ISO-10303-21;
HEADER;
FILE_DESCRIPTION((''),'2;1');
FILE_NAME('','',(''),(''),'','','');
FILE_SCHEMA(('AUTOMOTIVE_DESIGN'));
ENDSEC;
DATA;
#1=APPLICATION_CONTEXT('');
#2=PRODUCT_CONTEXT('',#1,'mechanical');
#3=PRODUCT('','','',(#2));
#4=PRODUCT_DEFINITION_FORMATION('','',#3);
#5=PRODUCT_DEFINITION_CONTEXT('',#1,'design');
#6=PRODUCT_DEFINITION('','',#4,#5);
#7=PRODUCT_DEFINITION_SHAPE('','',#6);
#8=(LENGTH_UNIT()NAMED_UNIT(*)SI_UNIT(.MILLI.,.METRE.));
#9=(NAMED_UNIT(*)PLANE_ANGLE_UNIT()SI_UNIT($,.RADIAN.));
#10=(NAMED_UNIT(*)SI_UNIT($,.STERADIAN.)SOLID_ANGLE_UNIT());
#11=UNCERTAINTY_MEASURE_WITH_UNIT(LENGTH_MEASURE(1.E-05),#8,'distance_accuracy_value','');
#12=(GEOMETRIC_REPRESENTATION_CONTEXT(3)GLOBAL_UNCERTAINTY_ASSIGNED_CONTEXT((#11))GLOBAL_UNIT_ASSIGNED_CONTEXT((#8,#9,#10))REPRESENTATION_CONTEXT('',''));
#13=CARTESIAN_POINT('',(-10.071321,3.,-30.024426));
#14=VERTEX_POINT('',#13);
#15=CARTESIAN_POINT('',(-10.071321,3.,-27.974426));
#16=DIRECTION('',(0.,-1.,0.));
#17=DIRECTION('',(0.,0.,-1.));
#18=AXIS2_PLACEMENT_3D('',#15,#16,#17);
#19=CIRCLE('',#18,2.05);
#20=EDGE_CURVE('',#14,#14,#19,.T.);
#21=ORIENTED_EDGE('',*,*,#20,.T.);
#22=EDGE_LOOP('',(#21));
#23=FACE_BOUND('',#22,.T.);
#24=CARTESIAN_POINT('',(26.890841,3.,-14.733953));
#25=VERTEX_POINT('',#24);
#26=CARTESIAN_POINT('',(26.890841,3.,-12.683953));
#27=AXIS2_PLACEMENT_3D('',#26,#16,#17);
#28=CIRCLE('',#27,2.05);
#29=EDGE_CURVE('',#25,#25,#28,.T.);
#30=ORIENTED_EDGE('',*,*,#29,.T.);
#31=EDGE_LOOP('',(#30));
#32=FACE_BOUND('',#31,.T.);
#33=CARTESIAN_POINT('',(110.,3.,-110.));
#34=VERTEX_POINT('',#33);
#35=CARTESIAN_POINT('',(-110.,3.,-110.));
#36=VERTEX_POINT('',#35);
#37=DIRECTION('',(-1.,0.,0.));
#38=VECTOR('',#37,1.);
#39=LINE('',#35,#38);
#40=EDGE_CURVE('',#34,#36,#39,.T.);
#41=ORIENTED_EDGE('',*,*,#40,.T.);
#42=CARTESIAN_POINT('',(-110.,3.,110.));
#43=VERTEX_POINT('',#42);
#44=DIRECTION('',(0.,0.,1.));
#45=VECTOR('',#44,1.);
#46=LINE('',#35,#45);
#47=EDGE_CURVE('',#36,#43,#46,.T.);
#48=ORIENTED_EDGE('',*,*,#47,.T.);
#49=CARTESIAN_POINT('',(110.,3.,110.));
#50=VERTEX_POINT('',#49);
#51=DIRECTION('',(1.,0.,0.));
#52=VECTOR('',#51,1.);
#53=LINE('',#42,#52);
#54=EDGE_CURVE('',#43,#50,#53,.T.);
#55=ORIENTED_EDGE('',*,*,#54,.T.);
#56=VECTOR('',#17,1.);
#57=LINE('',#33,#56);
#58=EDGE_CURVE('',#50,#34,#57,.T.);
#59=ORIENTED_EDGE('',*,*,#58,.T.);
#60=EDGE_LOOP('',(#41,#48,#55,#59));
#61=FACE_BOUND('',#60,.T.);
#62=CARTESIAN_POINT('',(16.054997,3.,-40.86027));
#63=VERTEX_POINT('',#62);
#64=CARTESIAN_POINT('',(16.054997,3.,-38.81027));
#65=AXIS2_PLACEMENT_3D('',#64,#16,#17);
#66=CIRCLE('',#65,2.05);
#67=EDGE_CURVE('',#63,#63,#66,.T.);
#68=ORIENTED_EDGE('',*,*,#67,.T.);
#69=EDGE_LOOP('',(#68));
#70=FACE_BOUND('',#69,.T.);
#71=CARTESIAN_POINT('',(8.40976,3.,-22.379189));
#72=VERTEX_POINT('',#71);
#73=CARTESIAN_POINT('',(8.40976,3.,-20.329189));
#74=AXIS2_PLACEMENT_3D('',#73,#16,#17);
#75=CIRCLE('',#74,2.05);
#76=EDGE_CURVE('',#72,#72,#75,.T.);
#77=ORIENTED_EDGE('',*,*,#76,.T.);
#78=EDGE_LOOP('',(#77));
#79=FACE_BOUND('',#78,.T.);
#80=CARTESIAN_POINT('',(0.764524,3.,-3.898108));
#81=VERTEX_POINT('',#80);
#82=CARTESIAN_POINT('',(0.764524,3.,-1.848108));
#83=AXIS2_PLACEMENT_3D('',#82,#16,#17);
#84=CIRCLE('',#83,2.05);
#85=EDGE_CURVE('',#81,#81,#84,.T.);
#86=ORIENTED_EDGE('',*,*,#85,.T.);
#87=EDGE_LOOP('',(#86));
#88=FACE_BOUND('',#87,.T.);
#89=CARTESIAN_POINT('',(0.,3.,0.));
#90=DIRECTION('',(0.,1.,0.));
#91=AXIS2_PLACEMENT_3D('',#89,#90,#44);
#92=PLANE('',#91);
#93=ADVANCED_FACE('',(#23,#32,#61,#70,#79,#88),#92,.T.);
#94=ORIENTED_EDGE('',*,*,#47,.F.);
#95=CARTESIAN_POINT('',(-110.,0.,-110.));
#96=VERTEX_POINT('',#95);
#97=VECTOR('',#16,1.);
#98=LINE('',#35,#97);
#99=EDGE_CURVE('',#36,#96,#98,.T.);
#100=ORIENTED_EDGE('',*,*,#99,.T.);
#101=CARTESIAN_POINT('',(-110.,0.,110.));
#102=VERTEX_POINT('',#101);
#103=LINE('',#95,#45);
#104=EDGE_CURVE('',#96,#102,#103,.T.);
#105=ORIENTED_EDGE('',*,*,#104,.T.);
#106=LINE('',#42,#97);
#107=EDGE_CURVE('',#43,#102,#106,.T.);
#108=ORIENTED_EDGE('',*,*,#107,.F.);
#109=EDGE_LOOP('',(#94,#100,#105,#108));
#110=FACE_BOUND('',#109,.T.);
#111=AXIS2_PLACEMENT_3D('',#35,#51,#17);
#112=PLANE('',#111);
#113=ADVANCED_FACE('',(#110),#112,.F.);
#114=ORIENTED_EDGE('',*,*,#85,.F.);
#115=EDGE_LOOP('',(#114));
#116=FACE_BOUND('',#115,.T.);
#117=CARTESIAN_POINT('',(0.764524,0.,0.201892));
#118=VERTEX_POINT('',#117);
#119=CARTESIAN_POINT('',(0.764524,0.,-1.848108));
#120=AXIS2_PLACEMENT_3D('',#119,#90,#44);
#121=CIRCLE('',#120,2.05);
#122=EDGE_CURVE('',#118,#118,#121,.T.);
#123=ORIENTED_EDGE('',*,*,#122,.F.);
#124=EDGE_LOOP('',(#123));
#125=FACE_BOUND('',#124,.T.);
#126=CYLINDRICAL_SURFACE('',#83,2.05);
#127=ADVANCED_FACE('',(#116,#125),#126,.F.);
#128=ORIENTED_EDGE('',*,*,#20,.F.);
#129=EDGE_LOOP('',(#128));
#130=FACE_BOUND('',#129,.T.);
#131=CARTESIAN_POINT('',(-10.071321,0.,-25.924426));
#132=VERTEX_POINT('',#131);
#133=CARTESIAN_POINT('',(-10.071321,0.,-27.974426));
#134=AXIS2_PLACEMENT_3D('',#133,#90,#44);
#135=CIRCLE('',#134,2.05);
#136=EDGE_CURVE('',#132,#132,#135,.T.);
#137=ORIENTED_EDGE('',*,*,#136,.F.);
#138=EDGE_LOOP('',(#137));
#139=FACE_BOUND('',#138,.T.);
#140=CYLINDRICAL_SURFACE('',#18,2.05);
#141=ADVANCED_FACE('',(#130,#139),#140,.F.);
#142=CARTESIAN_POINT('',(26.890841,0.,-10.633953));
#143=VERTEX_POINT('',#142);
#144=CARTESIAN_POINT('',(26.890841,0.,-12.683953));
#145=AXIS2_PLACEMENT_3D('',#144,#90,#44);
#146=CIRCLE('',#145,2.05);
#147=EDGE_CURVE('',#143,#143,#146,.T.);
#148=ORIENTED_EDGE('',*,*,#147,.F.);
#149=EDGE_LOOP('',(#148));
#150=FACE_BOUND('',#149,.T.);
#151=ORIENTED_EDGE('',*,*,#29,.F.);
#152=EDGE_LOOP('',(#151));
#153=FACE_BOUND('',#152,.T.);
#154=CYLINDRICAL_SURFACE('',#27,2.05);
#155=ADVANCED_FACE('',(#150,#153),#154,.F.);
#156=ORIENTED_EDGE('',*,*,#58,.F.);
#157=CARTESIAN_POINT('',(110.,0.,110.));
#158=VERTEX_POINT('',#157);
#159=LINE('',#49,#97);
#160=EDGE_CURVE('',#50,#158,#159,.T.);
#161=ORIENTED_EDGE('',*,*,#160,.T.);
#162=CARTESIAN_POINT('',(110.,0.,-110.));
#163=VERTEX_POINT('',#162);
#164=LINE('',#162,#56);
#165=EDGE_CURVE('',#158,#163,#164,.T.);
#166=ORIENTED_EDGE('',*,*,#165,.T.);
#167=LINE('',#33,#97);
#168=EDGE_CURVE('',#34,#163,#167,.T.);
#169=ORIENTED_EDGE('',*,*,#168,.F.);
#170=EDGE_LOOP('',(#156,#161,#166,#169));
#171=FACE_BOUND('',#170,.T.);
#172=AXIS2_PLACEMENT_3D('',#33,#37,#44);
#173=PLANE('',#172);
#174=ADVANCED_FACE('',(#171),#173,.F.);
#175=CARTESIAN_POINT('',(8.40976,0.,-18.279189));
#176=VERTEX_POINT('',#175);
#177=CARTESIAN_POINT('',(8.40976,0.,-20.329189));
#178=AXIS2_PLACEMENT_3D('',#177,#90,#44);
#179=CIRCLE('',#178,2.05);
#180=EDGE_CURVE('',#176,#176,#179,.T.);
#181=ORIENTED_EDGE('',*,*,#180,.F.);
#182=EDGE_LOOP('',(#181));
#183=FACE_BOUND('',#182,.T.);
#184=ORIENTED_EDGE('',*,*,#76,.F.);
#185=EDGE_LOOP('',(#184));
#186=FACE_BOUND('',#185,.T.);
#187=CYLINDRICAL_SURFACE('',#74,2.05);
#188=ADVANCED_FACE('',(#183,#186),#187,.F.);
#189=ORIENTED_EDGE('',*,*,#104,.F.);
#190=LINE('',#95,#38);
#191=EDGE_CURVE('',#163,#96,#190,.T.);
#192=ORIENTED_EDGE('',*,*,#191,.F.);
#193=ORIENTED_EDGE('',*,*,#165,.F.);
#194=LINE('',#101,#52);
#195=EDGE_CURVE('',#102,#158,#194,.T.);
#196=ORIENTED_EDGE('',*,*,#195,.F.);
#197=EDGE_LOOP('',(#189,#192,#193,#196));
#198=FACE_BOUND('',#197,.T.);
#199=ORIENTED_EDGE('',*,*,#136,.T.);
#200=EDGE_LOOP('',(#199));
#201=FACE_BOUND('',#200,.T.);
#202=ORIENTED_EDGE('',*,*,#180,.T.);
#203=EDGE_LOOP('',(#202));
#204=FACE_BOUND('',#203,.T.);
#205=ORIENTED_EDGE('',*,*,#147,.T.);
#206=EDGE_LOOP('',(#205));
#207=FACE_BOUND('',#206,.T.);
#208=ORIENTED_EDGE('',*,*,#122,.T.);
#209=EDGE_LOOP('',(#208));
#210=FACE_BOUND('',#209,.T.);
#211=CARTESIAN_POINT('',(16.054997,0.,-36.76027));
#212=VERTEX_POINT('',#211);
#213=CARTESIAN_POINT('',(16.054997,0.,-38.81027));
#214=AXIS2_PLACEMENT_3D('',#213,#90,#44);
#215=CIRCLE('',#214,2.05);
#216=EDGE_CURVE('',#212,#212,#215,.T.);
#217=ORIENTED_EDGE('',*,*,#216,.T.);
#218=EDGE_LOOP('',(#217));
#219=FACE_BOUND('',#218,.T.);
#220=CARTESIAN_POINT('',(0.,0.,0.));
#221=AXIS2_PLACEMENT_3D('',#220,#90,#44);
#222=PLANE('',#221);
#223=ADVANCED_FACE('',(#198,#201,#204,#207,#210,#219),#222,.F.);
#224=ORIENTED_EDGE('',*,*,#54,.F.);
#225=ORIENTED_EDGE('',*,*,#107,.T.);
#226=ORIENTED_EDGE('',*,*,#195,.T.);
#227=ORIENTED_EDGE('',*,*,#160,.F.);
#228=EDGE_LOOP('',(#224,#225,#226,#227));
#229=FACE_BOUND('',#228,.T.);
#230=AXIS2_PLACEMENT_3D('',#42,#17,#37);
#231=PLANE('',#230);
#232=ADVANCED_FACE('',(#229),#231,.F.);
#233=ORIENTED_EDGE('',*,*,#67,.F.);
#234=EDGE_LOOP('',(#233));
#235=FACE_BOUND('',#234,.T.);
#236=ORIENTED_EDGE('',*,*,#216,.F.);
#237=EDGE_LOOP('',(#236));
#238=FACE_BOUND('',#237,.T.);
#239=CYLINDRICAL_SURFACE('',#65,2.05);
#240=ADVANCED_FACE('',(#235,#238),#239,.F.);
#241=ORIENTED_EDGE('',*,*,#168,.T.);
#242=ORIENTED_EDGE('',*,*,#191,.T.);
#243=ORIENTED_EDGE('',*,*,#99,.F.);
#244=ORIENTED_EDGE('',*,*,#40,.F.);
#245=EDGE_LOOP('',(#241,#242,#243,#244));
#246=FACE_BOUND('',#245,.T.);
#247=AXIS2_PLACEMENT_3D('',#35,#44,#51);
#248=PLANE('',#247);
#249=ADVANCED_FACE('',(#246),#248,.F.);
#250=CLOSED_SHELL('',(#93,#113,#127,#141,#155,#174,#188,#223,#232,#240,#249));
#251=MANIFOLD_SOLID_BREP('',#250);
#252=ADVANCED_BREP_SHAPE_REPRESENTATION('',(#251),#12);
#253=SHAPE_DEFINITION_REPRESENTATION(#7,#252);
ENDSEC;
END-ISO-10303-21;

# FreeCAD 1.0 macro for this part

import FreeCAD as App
import Part
import Sketcher
Q = App.Units.Quantity

doc = App.newDocument("Part")
body = doc.addObject("PartDesign::Body", "Body")

# Sketch on XZ plane
sketch1 = body.newObject("Sketcher::SketchObject", "Sketch")
sketch1.AttachmentSupport = (doc.getObject("XZ_Plane"), [""])
sketch1.MapMode = "FlatFace"
sketch1.addGeometry([
    Part.LineSegment(App.Vector(-110, -110, 0), App.Vector(-110, 110, 0)),
    Part.LineSegment(App.Vector(-110, 110, 0), App.Vector(110, 110, 0)),
    Part.LineSegment(App.Vector(110, 110, 0), App.Vector(110, -110, 0)),
    Part.LineSegment(App.Vector(110, -110, 0), App.Vector(-110, -110, 0)),
], False)
sketch1.addConstraint([
    Sketcher.Constraint("Coincident", 0, 2, 1, 1),
    Sketcher.Constraint("Coincident", 1, 2, 2, 1),
    Sketcher.Constraint("Coincident", 2, 2, 3, 1),
    Sketcher.Constraint("Coincident", 3, 2, 0, 1),
    Sketcher.Constraint("Vertical", 0),
    Sketcher.Constraint("Horizontal", 1),
    Sketcher.Constraint("Vertical", 2),
    Sketcher.Constraint("Horizontal", 3),
    Sketcher.Constraint("Symmetric", 0, 2, 2, 2, -1, 1),
    Sketcher.Constraint("Equal", 3, 0),
    Sketcher.Constraint("DistanceX", 1, 1, 1, 2, Q("220 mm")),
])
pad1 = body.newObject("PartDesign::Pad", "Pad")
pad1.Profile = sketch1
pad1.Length = 3
pad1.Reversed = True

# Sketch on XZ plane
sketch2 = body.newObject("Sketcher::SketchObject", "Sketch001")
sketch2.AttachmentSupport = (doc.getObject("XZ_Plane"), [""])
sketch2.MapMode = "FlatFace"
sketch2.addGeometry([
    Part.Circle(App.Vector(16.1, -38.8, 0), App.Vector(0, 0, 1), 2),  # 0
    Part.Circle(App.Vector(8.4, -20.3, 0), App.Vector(0, 0, 1), 2),  # 1
    Part.Circle(App.Vector(26.9, -12.7, 0), App.Vector(0, 0, 1), 2),  # 2
    Part.Circle(App.Vector(0.8, -1.8, 0), App.Vector(0, 0, 1), 2),  # 3
    Part.Circle(App.Vector(-10.1, -28, 0), App.Vector(0, 0, 1), 2),  # 4
], False)
sketch2.addConstraint([
    Sketcher.Constraint("Equal", 0, 1),
    Sketcher.Constraint("Equal", 1, 2),
    Sketcher.Constraint("Equal", 2, 3),
    Sketcher.Constraint("Equal", 3, 4),
    Sketcher.Constraint("Diameter", 0, Q("4.1 mm")),
    Sketcher.Constraint("DistanceY", 0, 3, -1, 1, Q("38.81027 mm")),
    Sketcher.Constraint("DistanceX", -1, 1, 1, 3, Q("8.40976 mm")),
    Sketcher.Constraint("DistanceY", 1, 3, -1, 1, Q("20.329189 mm")),
    Sketcher.Constraint("DistanceX", -1, 1, 2, 3, Q("26.890841 mm")),
    Sketcher.Constraint("DistanceY", 3, 3, -1, 1, Q("1.848108 mm")),
    Sketcher.Constraint("DistanceX", 4, 3, -1, 1, Q("10.071321 mm")),
    Sketcher.Constraint("DistanceX", -1, 1, 0, 3, Q("16.054997 mm")),
    Sketcher.Constraint("DistanceY", 2, 3, -1, 1, Q("12.683953 mm")),
    Sketcher.Constraint("DistanceX", -1, 1, 3, 3, Q("0.764524 mm")),
    Sketcher.Constraint("DistanceY", 4, 3, -1, 1, Q("27.974426 mm")),
])
pocket1 = body.newObject("PartDesign::Pocket", "Pocket")
pocket1.Profile = sketch2
pocket1.Type = "ThroughAll"
pocket1.Midplane = True

doc.recompute()
